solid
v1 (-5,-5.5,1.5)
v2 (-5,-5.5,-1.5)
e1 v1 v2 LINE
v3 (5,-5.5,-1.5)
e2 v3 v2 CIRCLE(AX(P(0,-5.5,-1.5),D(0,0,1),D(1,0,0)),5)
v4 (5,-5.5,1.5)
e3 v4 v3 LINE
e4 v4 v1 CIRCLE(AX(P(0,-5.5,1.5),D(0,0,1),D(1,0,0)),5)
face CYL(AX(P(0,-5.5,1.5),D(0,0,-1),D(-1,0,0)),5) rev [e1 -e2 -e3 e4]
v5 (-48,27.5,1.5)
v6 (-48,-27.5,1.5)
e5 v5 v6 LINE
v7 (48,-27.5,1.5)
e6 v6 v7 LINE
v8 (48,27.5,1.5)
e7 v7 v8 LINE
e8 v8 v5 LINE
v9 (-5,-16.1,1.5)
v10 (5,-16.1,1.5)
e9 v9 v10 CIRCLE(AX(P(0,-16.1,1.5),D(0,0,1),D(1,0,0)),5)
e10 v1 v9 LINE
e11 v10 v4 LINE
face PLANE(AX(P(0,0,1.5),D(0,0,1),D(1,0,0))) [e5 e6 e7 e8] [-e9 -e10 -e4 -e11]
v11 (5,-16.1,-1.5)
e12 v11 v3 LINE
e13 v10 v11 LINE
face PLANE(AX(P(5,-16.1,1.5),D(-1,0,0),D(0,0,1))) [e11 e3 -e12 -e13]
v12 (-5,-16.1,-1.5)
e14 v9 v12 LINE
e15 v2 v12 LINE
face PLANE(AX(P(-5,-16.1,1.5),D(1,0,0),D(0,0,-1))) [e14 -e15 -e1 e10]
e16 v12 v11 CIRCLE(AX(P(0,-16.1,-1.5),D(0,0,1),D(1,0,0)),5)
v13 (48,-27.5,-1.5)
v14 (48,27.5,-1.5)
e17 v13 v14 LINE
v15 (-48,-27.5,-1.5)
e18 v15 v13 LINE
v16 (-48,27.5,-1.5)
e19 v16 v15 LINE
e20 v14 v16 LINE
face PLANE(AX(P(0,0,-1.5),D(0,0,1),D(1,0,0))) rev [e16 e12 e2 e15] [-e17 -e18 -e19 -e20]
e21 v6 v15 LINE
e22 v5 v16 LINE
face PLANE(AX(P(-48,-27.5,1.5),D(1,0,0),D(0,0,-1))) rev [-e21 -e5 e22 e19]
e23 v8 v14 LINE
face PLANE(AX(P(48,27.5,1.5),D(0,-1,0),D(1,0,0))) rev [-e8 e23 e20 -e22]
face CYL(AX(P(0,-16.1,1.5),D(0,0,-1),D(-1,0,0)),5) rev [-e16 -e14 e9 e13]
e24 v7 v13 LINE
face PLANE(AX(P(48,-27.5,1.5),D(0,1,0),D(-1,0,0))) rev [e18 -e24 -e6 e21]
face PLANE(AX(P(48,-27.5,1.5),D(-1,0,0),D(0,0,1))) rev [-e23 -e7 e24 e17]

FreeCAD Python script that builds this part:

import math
import FreeCAD as App
import Part
import Sketcher
from FreeCAD import Vector
Q = App.Units.Quantity

doc = App.newDocument("Part")
params = doc.addObject("Spreadsheet::Sheet", "Params")
for row, (alias, value) in enumerate([
    ("sketch1_radius", "5 mm"),
    ("sketch1_width", "96 mm"),
    ("sketch1_height", "55 mm"),
    ("sketch1_height2", "10.6 mm"),
    ("pad1_length", "3 mm"),
], start=1):
    params.set(f"A{row}", alias)
    params.set(f"B{row}", "=" + value)
    params.setAlias(f"B{row}", alias)

body = doc.addObject("PartDesign::Body", "Body")

# Sketch on XY plane
sketch1 = doc.addObject("Sketcher::SketchObject", "Sketch")
body.addObject(sketch1)
sketch1.AttachmentSupport = (doc.XY_Plane, [""])
sketch1.MapMode = "FlatFace"
sketch1.addGeometry(Part.LineSegment(Vector(-48, 27.5, 0), Vector(-48, -27.5, 0)), False)
sketch1.addGeometry(Part.LineSegment(Vector(-48, -27.5, 0), Vector(48, -27.5, 0)), False)
sketch1.addGeometry(Part.LineSegment(Vector(48, -27.5, 0), Vector(48, 27.5, 0)), False)
sketch1.addGeometry(Part.LineSegment(Vector(48, 27.5, 0), Vector(-48, 27.5, 0)), False)
sketch1.addGeometry(Part.ArcOfCircle(Part.Circle(Vector(0, -16.1, 0), Vector(0, 0, 1), 5), math.radians(180), math.radians(360)), False)
sketch1.addGeometry(Part.LineSegment(Vector(-5, -16.1, 0), Vector(-5, -5.5, 0)), False)
sketch1.addGeometry(Part.ArcOfCircle(Part.Circle(Vector(0, -5.5, 0), Vector(0, 0, 1), 5), math.radians(0), math.radians(180)), False)
sketch1.addGeometry(Part.LineSegment(Vector(5, -5.5, 0), Vector(5, -16.1, 0)), False)
sketch1.addConstraint(Sketcher.Constraint("Coincident", 0, 2, 1, 1))
sketch1.addConstraint(Sketcher.Constraint("Coincident", 1, 2, 2, 1))
sketch1.addConstraint(Sketcher.Constraint("Coincident", 2, 2, 3, 1))
sketch1.addConstraint(Sketcher.Constraint("Coincident", 3, 2, 0, 1))
sketch1.addConstraint(Sketcher.Constraint("Tangent", 4, 1, 5, 1))
sketch1.addConstraint(Sketcher.Constraint("Tangent", 5, 2, 6, 2))
sketch1.addConstraint(Sketcher.Constraint("Tangent", 6, 1, 7, 1))
sketch1.addConstraint(Sketcher.Constraint("Tangent", 7, 2, 4, 2))
sketch1.addConstraint(Sketcher.Constraint("Vertical", 0))
sketch1.addConstraint(Sketcher.Constraint("Horizontal", 1))
sketch1.addConstraint(Sketcher.Constraint("Vertical", 2))
sketch1.addConstraint(Sketcher.Constraint("Horizontal", 3))
sketch1.addConstraint(Sketcher.Constraint("Vertical", 5))
sketch1.addConstraint(Sketcher.Constraint("Vertical", 7))
sketch1.addConstraint(Sketcher.Constraint("Symmetric", 0, 2, 2, 2, -1, 1))
sketch1.addConstraint(Sketcher.Constraint("PointOnObject", 4, 3, -2))
sketch1.addConstraint(Sketcher.Constraint("Radius", 4, Q("5 mm")))
sketch1.addConstraint(Sketcher.Constraint("DistanceX", 1, 1, 1, 2, Q("96 mm")))
sketch1.addConstraint(Sketcher.Constraint("DistanceY", 0, 2, 0, 1, Q("55 mm")))
sketch1.addConstraint(Sketcher.Constraint("DistanceY", 5, 1, 5, 2, Q("10.6 mm")))
sketch1.addConstraint(Sketcher.Constraint("DistanceY", 0, 2, 6, 3, Q("22 mm")))
sketch1.setExpression("Constraints[16]", "Params.sketch1_radius")
sketch1.setExpression("Constraints[17]", "Params.sketch1_width")
sketch1.setExpression("Constraints[18]", "Params.sketch1_height")
sketch1.setExpression("Constraints[19]", "Params.sketch1_height2")
pad1 = doc.addObject("PartDesign::Pad", "Pad")
body.addObject(pad1)
pad1.Profile = sketch1
pad1.setExpression("Length", "Params.pad1_length")
pad1.Midplane = True

doc.recompute()
